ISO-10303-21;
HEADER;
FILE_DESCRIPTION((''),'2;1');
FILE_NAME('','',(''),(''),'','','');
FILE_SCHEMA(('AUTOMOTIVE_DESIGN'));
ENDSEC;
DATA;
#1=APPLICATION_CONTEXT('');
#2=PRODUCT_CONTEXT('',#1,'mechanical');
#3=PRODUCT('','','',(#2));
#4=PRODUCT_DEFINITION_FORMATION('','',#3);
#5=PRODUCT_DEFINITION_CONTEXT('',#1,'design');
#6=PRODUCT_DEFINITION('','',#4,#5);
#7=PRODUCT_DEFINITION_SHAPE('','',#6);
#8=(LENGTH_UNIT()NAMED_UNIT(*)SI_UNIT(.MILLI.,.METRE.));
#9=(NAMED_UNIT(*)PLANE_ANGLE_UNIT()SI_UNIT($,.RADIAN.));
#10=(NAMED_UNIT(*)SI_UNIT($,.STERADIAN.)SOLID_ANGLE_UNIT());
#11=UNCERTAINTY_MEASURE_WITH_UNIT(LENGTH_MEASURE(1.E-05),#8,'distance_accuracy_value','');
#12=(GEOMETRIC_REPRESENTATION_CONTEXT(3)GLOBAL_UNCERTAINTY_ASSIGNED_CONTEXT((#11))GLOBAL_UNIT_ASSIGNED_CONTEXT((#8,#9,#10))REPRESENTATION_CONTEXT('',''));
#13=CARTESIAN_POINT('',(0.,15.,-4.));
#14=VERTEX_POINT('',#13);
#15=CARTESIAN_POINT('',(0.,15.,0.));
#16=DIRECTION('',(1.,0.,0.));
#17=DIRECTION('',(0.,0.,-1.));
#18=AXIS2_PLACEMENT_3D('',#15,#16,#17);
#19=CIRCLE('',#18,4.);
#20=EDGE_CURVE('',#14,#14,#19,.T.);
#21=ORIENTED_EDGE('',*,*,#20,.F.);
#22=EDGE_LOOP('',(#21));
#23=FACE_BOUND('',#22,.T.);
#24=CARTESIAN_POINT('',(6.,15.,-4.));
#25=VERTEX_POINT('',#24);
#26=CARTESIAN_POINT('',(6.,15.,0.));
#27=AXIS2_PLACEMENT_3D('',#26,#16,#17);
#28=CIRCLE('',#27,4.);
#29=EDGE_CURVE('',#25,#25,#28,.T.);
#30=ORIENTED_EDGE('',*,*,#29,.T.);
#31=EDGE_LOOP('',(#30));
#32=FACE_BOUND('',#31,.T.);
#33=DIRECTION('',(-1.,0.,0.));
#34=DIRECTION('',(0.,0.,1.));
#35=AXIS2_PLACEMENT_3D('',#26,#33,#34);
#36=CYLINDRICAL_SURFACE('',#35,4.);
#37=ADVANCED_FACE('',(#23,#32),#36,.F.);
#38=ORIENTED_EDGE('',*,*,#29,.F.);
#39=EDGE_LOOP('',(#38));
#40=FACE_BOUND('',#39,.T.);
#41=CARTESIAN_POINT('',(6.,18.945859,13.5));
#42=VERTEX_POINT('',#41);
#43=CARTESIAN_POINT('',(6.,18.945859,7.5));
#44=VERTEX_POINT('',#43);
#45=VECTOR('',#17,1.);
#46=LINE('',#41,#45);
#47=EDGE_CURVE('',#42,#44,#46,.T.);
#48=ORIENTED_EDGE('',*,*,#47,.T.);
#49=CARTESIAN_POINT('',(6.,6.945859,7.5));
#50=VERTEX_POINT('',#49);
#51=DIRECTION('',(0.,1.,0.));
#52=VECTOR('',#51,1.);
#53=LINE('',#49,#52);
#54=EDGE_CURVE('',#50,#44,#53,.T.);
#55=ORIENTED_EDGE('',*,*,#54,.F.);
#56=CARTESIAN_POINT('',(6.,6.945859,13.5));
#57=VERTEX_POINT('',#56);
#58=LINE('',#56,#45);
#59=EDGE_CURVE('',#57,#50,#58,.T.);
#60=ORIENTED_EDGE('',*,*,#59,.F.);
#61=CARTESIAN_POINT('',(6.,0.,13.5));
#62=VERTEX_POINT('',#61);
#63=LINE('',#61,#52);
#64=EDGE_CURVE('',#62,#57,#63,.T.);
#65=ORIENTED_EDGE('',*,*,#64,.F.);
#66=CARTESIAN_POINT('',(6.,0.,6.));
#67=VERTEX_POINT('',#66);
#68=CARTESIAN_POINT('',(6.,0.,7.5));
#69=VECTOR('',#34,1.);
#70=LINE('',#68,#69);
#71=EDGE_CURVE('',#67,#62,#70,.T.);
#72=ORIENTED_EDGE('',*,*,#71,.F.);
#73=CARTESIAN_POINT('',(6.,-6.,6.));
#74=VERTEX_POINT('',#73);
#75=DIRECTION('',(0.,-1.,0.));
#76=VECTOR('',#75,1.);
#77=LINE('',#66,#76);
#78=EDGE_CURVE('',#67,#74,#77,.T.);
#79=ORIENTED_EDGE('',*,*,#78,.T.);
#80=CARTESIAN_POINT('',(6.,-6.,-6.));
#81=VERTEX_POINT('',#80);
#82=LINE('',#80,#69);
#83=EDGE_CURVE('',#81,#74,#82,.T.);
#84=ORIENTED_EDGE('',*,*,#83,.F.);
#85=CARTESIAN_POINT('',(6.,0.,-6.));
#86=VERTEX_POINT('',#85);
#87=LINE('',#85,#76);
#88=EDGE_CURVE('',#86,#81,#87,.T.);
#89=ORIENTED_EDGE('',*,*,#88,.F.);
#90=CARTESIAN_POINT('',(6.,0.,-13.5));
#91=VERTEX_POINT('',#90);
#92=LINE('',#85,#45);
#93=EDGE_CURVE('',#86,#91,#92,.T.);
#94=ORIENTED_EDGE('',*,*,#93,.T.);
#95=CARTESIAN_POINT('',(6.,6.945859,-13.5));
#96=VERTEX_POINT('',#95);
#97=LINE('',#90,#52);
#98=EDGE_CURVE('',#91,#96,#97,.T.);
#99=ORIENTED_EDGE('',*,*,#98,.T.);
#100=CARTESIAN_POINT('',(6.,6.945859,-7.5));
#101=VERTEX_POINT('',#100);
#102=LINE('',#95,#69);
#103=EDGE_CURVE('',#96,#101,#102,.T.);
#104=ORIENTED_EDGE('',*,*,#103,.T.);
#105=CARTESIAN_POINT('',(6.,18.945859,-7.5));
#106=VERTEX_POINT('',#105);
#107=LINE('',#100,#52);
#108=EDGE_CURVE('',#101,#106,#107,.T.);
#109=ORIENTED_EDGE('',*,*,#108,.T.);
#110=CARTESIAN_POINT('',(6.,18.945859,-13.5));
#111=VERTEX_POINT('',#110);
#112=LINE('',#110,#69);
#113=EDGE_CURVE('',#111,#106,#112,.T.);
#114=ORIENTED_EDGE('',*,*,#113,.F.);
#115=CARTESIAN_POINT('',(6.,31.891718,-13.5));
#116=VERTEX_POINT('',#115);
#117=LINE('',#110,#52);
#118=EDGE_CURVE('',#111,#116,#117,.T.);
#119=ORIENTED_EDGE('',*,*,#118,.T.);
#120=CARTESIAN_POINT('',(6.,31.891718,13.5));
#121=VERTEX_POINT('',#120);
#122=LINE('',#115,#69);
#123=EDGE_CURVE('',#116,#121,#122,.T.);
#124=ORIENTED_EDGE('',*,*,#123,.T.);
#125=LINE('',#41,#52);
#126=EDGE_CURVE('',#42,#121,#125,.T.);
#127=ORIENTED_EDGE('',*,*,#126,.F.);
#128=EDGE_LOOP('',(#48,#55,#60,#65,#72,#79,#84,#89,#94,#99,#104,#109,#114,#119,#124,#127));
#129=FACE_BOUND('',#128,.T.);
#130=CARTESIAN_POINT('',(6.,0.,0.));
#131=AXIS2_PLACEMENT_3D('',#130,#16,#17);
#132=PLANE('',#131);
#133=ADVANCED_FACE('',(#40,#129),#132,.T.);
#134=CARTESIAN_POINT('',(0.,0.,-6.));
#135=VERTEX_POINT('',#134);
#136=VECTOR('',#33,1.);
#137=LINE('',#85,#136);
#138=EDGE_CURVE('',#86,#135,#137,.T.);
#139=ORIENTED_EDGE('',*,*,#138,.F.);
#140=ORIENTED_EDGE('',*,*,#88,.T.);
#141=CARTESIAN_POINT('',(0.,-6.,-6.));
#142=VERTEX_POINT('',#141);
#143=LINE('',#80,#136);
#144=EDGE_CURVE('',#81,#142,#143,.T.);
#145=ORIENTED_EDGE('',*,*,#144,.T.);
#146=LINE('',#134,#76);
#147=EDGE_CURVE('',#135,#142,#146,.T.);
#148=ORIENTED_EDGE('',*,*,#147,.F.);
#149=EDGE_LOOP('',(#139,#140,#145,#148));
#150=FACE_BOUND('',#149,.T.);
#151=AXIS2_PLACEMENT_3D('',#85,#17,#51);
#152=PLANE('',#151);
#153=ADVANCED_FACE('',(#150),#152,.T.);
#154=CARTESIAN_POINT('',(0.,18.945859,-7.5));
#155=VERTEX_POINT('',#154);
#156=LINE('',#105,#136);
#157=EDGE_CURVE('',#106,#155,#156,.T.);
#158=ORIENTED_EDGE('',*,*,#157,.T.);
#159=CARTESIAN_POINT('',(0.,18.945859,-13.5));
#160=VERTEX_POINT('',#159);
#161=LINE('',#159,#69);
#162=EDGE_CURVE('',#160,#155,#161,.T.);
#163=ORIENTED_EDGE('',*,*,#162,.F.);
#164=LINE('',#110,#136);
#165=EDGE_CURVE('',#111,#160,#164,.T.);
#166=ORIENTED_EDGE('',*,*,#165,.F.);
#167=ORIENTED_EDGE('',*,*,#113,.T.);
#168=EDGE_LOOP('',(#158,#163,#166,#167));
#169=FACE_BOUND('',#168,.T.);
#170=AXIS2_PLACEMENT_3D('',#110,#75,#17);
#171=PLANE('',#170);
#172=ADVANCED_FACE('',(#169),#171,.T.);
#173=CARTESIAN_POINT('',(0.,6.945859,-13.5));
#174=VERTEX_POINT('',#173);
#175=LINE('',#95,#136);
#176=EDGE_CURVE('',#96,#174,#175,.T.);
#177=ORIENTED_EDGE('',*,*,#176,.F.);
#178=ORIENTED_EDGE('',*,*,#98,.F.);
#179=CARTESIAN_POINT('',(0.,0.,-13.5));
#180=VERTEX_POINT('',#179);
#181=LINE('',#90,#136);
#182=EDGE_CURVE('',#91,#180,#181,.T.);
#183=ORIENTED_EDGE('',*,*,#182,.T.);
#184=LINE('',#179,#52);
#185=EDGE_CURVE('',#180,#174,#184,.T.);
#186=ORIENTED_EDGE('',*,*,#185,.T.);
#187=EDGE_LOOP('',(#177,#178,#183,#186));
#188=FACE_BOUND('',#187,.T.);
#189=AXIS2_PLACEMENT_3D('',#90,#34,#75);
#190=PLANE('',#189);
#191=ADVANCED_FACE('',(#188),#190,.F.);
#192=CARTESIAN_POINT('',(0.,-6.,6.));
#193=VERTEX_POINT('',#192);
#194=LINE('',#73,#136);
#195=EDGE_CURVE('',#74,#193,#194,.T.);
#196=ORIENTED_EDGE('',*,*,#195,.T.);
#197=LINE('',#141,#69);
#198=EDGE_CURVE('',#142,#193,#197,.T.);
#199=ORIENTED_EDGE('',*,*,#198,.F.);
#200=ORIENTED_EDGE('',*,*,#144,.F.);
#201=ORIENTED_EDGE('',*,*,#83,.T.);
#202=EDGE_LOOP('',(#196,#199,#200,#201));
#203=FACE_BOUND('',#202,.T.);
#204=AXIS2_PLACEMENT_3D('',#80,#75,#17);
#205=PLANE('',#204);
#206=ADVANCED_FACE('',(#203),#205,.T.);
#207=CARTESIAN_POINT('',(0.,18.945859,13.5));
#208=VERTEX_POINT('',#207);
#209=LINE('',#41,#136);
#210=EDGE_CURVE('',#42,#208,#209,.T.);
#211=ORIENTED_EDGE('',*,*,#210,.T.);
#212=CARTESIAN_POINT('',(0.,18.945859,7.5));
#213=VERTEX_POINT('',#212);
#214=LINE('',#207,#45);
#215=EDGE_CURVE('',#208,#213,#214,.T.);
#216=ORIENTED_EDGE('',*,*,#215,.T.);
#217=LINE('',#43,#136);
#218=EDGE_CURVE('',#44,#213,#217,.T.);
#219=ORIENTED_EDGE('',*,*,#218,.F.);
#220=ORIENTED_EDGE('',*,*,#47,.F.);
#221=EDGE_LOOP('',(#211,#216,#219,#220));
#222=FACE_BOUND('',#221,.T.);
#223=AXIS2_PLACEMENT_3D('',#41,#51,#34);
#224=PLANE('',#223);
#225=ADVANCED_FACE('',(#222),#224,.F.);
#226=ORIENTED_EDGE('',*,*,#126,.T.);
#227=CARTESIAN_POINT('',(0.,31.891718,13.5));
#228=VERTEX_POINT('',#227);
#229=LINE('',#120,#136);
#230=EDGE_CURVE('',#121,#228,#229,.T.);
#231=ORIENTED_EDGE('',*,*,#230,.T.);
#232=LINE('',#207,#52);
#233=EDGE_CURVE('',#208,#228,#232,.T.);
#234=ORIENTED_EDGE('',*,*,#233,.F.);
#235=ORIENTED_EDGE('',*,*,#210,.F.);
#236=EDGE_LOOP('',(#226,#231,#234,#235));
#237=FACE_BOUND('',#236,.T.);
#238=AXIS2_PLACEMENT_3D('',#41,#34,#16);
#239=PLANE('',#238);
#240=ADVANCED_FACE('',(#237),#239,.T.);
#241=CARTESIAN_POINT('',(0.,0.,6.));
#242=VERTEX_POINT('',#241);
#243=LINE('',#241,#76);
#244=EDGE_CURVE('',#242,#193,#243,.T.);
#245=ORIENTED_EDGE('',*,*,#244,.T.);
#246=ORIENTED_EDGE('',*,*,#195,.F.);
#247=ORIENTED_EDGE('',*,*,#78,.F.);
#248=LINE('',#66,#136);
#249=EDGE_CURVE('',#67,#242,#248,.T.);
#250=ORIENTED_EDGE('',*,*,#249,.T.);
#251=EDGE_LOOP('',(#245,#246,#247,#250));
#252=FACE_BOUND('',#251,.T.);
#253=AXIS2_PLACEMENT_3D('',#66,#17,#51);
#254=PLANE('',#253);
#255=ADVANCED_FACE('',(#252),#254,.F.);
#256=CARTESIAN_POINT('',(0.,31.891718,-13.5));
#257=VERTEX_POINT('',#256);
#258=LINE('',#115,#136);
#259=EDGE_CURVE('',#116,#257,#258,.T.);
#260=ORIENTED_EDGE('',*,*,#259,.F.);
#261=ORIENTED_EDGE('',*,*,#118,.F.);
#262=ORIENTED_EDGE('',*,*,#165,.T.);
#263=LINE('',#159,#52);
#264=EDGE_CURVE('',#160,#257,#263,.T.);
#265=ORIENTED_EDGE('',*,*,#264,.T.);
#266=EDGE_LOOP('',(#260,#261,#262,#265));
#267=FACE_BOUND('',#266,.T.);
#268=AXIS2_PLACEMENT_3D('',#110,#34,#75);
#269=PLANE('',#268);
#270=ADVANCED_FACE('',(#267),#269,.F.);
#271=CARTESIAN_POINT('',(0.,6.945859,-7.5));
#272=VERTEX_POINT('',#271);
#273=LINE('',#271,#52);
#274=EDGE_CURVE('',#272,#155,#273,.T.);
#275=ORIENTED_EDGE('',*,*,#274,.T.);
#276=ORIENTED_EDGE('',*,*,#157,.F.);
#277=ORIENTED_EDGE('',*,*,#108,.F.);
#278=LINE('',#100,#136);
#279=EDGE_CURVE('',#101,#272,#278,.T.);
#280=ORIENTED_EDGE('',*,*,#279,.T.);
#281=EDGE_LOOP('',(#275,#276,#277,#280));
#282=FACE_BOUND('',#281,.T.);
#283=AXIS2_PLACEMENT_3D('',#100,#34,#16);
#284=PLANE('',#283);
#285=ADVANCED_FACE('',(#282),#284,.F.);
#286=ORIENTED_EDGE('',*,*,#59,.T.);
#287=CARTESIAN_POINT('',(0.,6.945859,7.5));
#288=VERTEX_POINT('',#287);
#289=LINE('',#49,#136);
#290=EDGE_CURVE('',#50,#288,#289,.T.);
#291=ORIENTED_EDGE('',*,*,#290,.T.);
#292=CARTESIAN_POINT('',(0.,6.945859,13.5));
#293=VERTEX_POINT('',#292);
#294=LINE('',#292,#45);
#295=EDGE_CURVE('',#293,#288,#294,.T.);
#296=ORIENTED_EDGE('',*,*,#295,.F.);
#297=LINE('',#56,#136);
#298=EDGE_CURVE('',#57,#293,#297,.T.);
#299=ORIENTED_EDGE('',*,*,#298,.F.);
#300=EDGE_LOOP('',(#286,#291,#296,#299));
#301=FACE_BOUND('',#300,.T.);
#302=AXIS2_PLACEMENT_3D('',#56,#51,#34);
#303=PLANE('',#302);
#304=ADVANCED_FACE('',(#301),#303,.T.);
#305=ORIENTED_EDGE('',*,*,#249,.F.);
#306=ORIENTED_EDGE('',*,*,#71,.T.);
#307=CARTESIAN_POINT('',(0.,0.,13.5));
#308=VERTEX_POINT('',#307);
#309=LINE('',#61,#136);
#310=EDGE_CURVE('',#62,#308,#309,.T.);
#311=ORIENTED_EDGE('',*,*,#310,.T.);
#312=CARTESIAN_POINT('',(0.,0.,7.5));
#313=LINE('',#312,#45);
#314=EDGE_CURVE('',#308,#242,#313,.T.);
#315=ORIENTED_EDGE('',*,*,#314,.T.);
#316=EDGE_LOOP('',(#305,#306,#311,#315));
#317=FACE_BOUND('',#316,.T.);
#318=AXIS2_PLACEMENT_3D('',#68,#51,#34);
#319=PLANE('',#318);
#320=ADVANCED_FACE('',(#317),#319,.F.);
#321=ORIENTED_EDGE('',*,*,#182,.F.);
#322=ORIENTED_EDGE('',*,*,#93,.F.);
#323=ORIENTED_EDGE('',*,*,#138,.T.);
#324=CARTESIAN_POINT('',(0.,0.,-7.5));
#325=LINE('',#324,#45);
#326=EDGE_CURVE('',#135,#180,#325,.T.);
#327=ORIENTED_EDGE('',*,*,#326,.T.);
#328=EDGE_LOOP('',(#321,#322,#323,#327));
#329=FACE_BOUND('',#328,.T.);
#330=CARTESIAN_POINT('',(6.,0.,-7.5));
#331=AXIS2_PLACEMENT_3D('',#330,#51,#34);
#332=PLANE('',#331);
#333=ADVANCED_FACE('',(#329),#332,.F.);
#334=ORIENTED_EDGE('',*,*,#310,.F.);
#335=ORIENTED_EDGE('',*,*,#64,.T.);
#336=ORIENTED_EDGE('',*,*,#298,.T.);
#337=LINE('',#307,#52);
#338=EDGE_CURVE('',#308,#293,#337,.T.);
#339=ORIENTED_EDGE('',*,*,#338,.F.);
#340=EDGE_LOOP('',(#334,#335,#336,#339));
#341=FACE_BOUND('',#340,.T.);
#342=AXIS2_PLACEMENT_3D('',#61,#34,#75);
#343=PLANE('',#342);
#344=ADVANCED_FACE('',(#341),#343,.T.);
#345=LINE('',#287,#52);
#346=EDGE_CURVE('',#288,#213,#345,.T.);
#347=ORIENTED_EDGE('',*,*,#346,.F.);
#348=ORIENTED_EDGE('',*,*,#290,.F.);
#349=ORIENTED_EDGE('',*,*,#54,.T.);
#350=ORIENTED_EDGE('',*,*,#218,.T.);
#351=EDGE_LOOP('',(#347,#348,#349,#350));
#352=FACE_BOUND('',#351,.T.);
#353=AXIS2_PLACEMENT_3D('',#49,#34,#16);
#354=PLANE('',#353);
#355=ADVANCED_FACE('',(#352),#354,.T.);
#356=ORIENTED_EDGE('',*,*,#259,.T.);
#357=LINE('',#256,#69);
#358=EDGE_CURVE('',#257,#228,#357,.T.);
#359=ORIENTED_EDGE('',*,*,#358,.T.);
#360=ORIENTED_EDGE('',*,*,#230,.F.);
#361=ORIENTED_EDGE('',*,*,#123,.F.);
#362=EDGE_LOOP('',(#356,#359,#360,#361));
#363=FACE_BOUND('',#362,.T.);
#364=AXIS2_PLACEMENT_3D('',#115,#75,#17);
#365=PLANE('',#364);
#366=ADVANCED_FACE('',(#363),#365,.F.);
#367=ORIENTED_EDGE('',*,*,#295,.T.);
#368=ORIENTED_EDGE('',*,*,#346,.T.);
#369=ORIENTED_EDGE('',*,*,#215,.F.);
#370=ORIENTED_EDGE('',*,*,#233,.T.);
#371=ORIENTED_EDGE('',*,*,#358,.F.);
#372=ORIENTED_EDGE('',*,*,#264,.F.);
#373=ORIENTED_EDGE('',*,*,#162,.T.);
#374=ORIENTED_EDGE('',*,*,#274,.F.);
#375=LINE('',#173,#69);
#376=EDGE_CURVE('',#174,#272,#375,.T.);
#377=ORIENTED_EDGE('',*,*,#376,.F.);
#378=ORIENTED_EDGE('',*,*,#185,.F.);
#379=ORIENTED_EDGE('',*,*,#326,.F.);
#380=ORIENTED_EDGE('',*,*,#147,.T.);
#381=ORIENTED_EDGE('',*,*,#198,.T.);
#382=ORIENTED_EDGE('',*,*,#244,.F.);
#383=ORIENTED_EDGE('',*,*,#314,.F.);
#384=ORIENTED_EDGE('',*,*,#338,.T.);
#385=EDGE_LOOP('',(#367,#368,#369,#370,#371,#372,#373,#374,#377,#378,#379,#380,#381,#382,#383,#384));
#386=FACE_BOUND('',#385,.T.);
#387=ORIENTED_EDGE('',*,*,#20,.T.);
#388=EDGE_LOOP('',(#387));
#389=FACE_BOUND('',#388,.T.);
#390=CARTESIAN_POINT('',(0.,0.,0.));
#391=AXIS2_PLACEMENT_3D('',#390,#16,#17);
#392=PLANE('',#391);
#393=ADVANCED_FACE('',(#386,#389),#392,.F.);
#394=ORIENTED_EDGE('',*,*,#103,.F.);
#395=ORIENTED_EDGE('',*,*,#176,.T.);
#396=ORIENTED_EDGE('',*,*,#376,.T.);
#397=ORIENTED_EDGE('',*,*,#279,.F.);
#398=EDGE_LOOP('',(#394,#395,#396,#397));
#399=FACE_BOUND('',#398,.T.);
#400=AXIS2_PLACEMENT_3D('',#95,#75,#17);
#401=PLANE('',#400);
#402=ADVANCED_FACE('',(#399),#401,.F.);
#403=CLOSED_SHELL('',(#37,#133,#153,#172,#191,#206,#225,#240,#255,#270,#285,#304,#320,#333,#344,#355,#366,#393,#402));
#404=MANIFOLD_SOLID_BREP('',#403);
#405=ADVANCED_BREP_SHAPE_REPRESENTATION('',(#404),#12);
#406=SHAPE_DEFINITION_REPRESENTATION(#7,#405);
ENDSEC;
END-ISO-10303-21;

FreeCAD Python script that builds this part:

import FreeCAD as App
import Part
import Sketcher

V = App.Vector


def add_polygon(sketch, points):
    """Adds a closed chain of lines whose ends are joined by coincident constraints."""
    first, n = sketch.GeometryCount, len(points)
    for a, b in zip(points, points[1:] + points[:1]):
        sketch.addGeometry(Part.LineSegment(App.Vector(*a, 0), App.Vector(*b, 0)), False)
    for i in range(n):
        sketch.addConstraint(Sketcher.Constraint("Coincident", first + i, 2, first + (i + 1) % n, 1))

doc = App.newDocument("Part")
body = doc.addObject("PartDesign::Body", "Body")

# Sketch on YZ plane
sketch1 = body.newObject("Sketcher::SketchObject", "Sketch")
sketch1.AttachmentSupport = (doc.getObject("YZ_Plane"), [""])
sketch1.MapMode = "FlatFace"
add_polygon(sketch1, [(0, 6), (-6, 6), (-6, -6), (0, -6), (0, -13.5), (6.945859, -13.5), (6.945859, -7.5), (18.945859, -7.5), (18.945859, -13.5), (31.891718, -13.5), (31.891718, 13.5), (18.945859, 13.5), (18.945859, 7.5), (6.945859, 7.5), (6.945859, 13.5), (0, 13.5)])  # lines 0-15
sketch1.addGeometry(Part.Circle(V(15, 0, 0), V(0, 0, 1), 4), False)  # 16
sketch1.addConstraint(Sketcher.Constraint("Horizontal", 0))
sketch1.addConstraint(Sketcher.Constraint("Vertical", 1))
sketch1.addConstraint(Sketcher.Constraint("Horizontal", 2))
sketch1.addConstraint(Sketcher.Constraint("Vertical", 3))
sketch1.addConstraint(Sketcher.Constraint("Horizontal", 4))
sketch1.addConstraint(Sketcher.Constraint("Vertical", 5))
sketch1.addConstraint(Sketcher.Constraint("Horizontal", 6))
sketch1.addConstraint(Sketcher.Constraint("Vertical", 7))
sketch1.addConstraint(Sketcher.Constraint("Horizontal", 8))
sketch1.addConstraint(Sketcher.Constraint("Vertical", 9))
sketch1.addConstraint(Sketcher.Constraint("Horizontal", 10))
sketch1.addConstraint(Sketcher.Constraint("Vertical", 11))
sketch1.addConstraint(Sketcher.Constraint("Horizontal", 12))
sketch1.addConstraint(Sketcher.Constraint("Vertical", 13))
sketch1.addConstraint(Sketcher.Constraint("Horizontal", 14))
sketch1.addConstraint(Sketcher.Constraint("Vertical", 15))
sketch1.addConstraint(Sketcher.Constraint("Symmetric", 3, 2, 14, 2, -1, 1))
sketch1.addConstraint(Sketcher.Constraint("Symmetric", 7, 2, 10, 2, -1))
sketch1.addConstraint(Sketcher.Constraint("Symmetric", 5, 2, 12, 2, -1))
sketch1.addConstraint(Sketcher.Constraint("Symmetric", 2, 2, 15, 2, -1))
sketch1.addConstraint(Sketcher.Constraint("PointOnObject", 16, 3, -1))
sketch1.addConstraint(Sketcher.Constraint("Horizontal", 4, 2, 7, 2))
sketch1.addConstraint(Sketcher.Constraint("Equal", 12, 1))
sketch1.addConstraint(Sketcher.Constraint("Equal", 2, 5))
sketch1.addConstraint(Sketcher.Constraint("Diameter", 16, 8.0))
sketch1.addConstraint(Sketcher.Constraint("DistanceX", 0, 2, 0, 1, 6.0))
sketch1.addConstraint(Sketcher.Constraint("DistanceX", 6, 1, 6, 2, 12.0))
sketch1.addConstraint(Sketcher.Constraint("DistanceY", 9, 1, 9, 2, 27.0))
sketch1.addConstraint(Sketcher.Constraint("DistanceX", -1, 1, 16, 3, 15.0))
sketch1.addConstraint(Sketcher.Constraint("DistanceX", 4, 1, 4, 2, 6.945859))
sketch1.addConstraint(Sketcher.Constraint("DistanceX", 8, 1, 8, 2, 12.945859))
pad1 = body.newObject("PartDesign::Pad", "Pad")
pad1.Profile = sketch1
pad1.Length = 6

doc.recompute()
